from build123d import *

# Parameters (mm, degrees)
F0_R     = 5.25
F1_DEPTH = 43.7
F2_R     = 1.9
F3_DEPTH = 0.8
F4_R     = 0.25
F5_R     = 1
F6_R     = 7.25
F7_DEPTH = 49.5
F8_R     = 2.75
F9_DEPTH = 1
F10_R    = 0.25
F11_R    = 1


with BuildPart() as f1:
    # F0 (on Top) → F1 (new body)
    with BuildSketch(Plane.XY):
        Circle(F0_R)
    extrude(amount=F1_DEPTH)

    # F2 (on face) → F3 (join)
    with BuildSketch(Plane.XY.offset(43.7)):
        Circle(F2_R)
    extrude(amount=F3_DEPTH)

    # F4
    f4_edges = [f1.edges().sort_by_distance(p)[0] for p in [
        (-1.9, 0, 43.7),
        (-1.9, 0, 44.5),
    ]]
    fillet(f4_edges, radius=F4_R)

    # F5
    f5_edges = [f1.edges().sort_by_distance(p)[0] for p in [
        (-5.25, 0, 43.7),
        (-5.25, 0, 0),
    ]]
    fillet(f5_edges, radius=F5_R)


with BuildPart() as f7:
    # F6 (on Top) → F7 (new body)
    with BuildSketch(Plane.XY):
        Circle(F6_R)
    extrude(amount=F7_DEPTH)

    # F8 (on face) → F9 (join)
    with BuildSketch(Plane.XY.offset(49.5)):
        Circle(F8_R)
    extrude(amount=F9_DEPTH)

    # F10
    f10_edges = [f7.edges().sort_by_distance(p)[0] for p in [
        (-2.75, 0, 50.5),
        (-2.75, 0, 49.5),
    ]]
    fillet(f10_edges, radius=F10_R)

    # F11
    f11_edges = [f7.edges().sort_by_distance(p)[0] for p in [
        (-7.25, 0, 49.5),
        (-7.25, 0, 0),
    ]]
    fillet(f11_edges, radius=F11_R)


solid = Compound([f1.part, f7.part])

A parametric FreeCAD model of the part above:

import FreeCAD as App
import Part
import Sketcher
Q = App.Units.Quantity


def edges_at(feature, points):
    """Names of the edges that pass closest to the given points."""
    edges = feature.Shape.Edges
    near = lambda p: min(range(len(edges)), key=lambda i: edges[i].distToShape(Part.Vertex(*p))[0])
    return sorted({f"Edge{near(p) + 1}" for p in points})

doc = App.newDocument("Part")
params = doc.addObject("Spreadsheet::Sheet", "Params")
for row, (alias, value) in enumerate([
    ("sketch1_diameter", "10.5 mm"),
    ("pad1_length", "43.7 mm"),
    ("sketch2_diameter", "3.8 mm"),
    ("pad2_length", "0.8 mm"),
    ("fillet_radius", "0.25 mm"),
    ("fillet2_radius", "1 mm"),
    ("sketch3_diameter", "14.5 mm"),
    ("pad3_length", "49.5 mm"),
    ("sketch4_diameter", "5.5 mm"),
    ("pad4_length", "1 mm"),
    ("fillet3_radius", "0.25 mm"),
    ("fillet4_radius", "1 mm"),
], start=1):
    params.set(f"A{row}", alias)
    params.set(f"B{row}", "=" + value)
    params.setAlias(f"B{row}", alias)

body = doc.addObject("PartDesign::Body", "Body")

# Sketch on XY plane
sketch1 = body.newObject("Sketcher::SketchObject", "Sketch")
sketch1.AttachmentSupport = (doc.getObject("XY_Plane"), [""])
sketch1.MapMode = "FlatFace"
sketch1.addGeometry(Part.Circle(App.Vector(0, 0, 0), App.Vector(0, 0, 1), 5), False)
sketch1.addConstraint(Sketcher.Constraint("Coincident", 0, 3, -1, 1))
sketch1.addConstraint(Sketcher.Constraint("Diameter", 0, Q("10.5 mm")))
sketch1.setExpression("Constraints[1]", "Params.sketch1_diameter")
pad1 = body.newObject("PartDesign::Pad", "Pad")
pad1.Profile = sketch1
pad1.setExpression("Length", "Params.pad1_length")

# Sketch on XY plane
sketch2 = body.newObject("Sketcher::SketchObject", "Sketch001")
sketch2.AttachmentSupport = (doc.getObject("XY_Plane"), [""])
sketch2.MapMode = "FlatFace"
sketch2.AttachmentOffset = App.Placement(App.Vector(0, 0, 43.7), App.Rotation())
sketch2.addGeometry(Part.Circle(App.Vector(0, 0, 0), App.Vector(0, 0, 1), 1.9), False)
sketch2.addConstraint(Sketcher.Constraint("Coincident", 0, 3, -1, 1))
sketch2.addConstraint(Sketcher.Constraint("Diameter", 0, Q("3.8 mm")))
sketch2.setExpression("Constraints[1]", "Params.sketch2_diameter")
pad2 = body.newObject("PartDesign::Pad", "Pad001")
pad2.Profile = sketch2
pad2.setExpression("Length", "Params.pad2_length")
doc.recompute()

fillet = body.newObject("PartDesign::Fillet", "Fillet")
fillet.Base = (pad2, edges_at(pad2, [(-1.9, 0, 43.7), (-1.9, 0, 44.5)]))
fillet.setExpression("Radius", "Params.fillet_radius")
doc.recompute()

fillet2 = body.newObject("PartDesign::Fillet", "Fillet001")
fillet2.Base = (fillet, edges_at(fillet, [(-5.25, 0, 43.7), (-5.25, 0, 0)]))
fillet2.setExpression("Radius", "Params.fillet2_radius")
body2 = doc.addObject("PartDesign::Body", "Body001")

# Sketch on XY plane
sketch3 = body2.newObject("Sketcher::SketchObject", "Sketch002")
sketch3.AttachmentSupport = (doc.getObject("XY_Plane001"), [""])
sketch3.MapMode = "FlatFace"
sketch3.addGeometry(Part.Circle(App.Vector(0, 0, 0), App.Vector(0, 0, 1), 7), False)
sketch3.addConstraint(Sketcher.Constraint("Coincident", 0, 3, -1, 1))
sketch3.addConstraint(Sketcher.Constraint("Diameter", 0, Q("14.5 mm")))
sketch3.setExpression("Constraints[1]", "Params.sketch3_diameter")
pad3 = body2.newObject("PartDesign::Pad", "Pad002")
pad3.Profile = sketch3
pad3.setExpression("Length", "Params.pad3_length")

# Sketch on XY plane
sketch4 = body2.newObject("Sketcher::SketchObject", "Sketch003")
sketch4.AttachmentSupport = (doc.getObject("XY_Plane001"), [""])
sketch4.MapMode = "FlatFace"
sketch4.AttachmentOffset = App.Placement(App.Vector(0, 0, 49.5), App.Rotation())
sketch4.addGeometry(Part.Circle(App.Vector(0, 0, 0), App.Vector(0, 0, 1), 2.8), False)
sketch4.addConstraint(Sketcher.Constraint("Coincident", 0, 3, -1, 1))
sketch4.addConstraint(Sketcher.Constraint("Diameter", 0, Q("5.5 mm")))
sketch4.setExpression("Constraints[1]", "Params.sketch4_diameter")
pad4 = body2.newObject("PartDesign::Pad", "Pad003")
pad4.Profile = sketch4
pad4.setExpression("Length", "Params.pad4_length")
doc.recompute()

fillet3 = body2.newObject("PartDesign::Fillet", "Fillet002")
fillet3.Base = (pad4, edges_at(pad4, [(-2.75, 0, 50.5), (-2.75, 0, 49.5)]))
fillet3.setExpression("Radius", "Params.fillet3_radius")
doc.recompute()

fillet4 = body2.newObject("PartDesign::Fillet", "Fillet003")
fillet4.Base = (fillet3, edges_at(fillet3, [(-7.25, 0, 49.5), (-7.25, 0, 0)]))
fillet4.setExpression("Radius", "Params.fillet4_radius")

doc.recompute()
